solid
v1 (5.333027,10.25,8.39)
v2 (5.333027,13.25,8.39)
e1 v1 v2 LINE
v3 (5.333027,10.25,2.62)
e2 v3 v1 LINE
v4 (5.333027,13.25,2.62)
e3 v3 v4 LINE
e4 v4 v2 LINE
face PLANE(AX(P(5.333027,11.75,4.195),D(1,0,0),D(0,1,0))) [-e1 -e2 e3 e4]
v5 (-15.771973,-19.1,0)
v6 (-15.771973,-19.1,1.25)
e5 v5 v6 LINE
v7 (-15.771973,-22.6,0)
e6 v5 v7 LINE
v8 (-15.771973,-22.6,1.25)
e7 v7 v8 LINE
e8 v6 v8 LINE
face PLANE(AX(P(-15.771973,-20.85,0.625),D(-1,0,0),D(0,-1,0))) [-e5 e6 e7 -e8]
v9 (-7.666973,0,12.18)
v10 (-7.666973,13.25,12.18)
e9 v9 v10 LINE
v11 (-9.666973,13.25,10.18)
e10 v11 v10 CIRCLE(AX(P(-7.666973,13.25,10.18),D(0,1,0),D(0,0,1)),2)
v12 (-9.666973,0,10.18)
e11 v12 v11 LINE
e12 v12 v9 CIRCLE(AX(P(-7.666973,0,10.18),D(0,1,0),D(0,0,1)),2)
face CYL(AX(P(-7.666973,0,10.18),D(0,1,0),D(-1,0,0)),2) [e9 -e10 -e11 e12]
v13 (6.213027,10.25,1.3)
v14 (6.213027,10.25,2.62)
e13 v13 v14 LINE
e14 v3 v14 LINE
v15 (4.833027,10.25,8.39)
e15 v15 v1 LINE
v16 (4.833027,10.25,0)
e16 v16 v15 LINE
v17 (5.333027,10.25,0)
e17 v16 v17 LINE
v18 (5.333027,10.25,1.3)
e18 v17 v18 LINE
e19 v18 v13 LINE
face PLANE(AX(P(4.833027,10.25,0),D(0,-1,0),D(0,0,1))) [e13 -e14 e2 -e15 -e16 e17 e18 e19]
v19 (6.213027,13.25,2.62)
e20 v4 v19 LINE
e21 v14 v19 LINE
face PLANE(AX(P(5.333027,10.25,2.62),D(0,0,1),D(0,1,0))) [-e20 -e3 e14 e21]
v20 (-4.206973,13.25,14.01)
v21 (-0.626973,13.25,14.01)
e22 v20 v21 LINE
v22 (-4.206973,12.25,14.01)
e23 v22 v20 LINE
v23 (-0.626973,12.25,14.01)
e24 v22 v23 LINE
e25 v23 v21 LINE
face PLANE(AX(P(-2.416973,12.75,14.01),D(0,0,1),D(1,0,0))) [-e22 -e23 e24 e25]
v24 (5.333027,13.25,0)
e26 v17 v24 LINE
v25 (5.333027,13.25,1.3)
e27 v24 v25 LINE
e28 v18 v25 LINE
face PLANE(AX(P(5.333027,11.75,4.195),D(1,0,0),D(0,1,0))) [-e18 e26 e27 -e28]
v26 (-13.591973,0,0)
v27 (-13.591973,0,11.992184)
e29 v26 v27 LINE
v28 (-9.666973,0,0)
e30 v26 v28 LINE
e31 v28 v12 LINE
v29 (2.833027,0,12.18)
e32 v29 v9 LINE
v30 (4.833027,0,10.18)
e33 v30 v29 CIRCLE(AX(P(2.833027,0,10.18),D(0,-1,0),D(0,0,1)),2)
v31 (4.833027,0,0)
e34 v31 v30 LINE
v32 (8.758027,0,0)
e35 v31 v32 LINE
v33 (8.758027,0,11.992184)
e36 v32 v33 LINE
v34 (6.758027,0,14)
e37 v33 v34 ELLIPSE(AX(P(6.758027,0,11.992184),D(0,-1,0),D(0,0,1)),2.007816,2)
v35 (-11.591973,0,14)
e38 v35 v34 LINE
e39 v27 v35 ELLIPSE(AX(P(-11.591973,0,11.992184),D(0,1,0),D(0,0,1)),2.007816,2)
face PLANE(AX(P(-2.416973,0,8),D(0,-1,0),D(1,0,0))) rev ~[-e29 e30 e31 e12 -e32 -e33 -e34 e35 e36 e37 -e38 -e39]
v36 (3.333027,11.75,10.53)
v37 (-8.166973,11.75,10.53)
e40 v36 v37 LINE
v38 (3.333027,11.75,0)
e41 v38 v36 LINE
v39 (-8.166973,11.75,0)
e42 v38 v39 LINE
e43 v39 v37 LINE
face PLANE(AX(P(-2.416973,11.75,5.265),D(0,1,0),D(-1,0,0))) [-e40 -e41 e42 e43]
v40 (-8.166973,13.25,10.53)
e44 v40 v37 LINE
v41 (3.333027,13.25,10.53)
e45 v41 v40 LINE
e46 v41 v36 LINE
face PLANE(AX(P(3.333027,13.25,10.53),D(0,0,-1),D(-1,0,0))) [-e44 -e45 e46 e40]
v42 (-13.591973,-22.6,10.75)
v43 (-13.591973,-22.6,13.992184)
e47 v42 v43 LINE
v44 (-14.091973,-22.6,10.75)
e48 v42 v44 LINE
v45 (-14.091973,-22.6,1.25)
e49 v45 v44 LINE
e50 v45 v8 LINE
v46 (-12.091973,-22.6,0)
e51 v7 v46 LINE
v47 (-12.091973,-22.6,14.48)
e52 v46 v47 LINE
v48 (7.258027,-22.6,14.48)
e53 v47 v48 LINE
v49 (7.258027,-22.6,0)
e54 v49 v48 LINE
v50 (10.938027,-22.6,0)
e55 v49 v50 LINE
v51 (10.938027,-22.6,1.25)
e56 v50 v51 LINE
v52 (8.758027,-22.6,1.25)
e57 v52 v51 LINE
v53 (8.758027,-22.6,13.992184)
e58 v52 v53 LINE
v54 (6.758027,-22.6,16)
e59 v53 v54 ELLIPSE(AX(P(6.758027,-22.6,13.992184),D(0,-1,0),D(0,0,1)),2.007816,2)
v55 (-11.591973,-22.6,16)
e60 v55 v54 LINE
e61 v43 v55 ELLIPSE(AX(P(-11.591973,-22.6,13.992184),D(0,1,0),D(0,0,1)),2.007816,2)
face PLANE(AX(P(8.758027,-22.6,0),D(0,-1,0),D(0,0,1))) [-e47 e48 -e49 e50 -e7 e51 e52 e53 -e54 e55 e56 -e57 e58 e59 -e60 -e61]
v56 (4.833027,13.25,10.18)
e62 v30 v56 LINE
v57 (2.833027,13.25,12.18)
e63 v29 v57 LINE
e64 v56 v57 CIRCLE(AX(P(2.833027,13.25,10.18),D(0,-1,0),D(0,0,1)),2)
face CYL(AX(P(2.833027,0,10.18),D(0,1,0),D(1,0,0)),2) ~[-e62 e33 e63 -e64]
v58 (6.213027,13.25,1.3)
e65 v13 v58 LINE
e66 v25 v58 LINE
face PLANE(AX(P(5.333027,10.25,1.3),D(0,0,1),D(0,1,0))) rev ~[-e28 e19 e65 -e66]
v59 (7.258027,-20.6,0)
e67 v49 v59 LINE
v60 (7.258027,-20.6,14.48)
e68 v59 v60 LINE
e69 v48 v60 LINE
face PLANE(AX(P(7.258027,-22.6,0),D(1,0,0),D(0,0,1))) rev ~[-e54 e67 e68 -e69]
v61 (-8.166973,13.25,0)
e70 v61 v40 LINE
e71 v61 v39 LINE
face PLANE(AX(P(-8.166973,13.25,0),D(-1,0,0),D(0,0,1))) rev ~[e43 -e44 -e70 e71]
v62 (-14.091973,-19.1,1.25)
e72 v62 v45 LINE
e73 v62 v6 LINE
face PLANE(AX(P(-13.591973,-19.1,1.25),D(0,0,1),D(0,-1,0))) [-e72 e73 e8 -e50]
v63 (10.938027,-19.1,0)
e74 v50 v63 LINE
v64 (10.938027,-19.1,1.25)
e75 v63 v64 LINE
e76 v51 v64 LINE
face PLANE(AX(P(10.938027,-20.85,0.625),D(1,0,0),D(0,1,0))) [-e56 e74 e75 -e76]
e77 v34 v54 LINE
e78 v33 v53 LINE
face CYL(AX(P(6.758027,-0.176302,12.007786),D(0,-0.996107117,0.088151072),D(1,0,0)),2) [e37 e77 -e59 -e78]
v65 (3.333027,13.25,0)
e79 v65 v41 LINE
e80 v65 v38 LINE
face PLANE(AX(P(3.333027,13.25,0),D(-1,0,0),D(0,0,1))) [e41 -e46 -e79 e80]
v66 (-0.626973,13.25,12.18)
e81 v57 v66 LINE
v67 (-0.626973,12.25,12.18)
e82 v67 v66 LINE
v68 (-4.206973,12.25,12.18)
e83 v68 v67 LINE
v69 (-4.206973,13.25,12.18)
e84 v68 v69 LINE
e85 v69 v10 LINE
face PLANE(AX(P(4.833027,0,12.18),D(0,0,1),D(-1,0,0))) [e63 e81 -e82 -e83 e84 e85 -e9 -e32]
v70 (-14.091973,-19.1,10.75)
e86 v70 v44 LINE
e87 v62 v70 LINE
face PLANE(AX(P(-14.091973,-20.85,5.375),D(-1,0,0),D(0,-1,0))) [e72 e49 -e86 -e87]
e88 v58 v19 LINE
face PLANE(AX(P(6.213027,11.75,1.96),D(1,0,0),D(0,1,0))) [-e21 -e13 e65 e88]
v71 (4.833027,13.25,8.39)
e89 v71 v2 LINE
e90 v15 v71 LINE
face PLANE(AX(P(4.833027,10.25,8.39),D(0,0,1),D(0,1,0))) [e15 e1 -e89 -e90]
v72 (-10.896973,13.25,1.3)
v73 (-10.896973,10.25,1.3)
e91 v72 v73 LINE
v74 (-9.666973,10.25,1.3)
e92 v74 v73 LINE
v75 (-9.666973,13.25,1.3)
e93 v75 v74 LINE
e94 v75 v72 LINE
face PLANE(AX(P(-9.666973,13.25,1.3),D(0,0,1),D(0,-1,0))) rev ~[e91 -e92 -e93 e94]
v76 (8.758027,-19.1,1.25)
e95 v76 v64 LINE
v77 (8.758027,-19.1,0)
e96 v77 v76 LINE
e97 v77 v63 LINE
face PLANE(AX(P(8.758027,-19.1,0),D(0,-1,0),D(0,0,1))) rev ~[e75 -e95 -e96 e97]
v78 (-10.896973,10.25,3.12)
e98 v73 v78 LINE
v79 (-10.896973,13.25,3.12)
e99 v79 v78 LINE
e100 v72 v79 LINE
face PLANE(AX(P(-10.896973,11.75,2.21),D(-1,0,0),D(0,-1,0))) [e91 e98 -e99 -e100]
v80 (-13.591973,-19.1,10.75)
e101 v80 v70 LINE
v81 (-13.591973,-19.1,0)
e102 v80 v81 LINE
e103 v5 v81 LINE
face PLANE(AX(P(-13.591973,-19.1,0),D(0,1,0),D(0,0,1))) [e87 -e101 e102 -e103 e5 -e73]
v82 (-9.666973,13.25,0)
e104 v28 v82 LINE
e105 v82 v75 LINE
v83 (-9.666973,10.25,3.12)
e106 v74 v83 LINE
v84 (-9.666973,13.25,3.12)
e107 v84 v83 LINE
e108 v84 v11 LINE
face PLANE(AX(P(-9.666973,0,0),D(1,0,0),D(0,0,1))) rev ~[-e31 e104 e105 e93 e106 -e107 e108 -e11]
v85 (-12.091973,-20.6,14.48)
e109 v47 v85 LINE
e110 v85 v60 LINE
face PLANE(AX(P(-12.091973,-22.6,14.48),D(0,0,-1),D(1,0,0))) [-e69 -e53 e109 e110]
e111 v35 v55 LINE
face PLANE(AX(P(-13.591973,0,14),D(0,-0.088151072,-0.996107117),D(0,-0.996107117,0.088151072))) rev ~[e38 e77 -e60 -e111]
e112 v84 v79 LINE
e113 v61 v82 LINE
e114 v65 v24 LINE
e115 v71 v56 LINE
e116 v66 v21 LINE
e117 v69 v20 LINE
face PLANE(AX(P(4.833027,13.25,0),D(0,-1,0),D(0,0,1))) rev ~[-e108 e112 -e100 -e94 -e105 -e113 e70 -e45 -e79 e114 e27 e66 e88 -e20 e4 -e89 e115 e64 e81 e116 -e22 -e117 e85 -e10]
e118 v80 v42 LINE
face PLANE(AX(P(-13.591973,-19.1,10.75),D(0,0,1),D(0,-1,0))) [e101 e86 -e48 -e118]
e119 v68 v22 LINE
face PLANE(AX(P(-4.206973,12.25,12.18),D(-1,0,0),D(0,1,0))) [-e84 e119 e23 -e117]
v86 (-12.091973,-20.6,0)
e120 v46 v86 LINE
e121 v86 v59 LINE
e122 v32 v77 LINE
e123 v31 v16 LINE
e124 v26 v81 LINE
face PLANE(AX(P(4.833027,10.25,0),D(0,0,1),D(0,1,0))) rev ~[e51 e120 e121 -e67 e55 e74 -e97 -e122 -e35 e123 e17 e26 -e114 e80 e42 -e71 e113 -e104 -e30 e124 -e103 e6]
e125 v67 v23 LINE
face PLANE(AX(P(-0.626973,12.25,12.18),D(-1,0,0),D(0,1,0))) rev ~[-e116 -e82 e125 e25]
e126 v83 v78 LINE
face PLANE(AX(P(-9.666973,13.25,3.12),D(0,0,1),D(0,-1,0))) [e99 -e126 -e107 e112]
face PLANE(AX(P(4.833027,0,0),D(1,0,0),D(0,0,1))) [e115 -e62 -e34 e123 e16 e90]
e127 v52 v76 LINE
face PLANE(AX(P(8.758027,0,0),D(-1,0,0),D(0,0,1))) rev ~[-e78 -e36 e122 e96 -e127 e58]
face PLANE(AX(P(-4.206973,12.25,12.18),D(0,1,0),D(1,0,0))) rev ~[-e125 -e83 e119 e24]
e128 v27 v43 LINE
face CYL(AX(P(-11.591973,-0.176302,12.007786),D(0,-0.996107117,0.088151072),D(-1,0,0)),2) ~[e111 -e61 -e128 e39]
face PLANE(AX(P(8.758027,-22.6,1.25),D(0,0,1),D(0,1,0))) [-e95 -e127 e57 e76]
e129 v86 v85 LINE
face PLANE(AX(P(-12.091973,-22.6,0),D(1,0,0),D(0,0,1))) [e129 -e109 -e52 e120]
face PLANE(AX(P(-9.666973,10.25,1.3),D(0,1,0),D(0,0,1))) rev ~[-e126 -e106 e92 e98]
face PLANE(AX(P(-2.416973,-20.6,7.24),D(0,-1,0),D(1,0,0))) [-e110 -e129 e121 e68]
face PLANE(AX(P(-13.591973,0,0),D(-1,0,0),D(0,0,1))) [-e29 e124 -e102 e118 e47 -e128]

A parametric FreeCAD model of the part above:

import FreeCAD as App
import Part
import Sketcher

V = App.Vector
Q = App.Units.Quantity


def edges_at(feature, points):
    """Names of the edges that pass closest to the given points."""
    edges = feature.Shape.Edges
    near = lambda p: min(range(len(edges)), key=lambda i: edges[i].distToShape(Part.Vertex(*p))[0])
    return sorted({f"Edge{near(p) + 1}" for p in points})


def add_polygon(sketch, points):
    """Adds a closed chain of lines whose ends are joined by coincident constraints."""
    first, n = sketch.GeometryCount, len(points)
    for a, b in zip(points, points[1:] + points[:1]):
        sketch.addGeometry(Part.LineSegment(App.Vector(*a, 0), App.Vector(*b, 0)), False)
    for i in range(n):
        sketch.addConstraint(Sketcher.Constraint("Coincident", first + i, 2, first + (i + 1) % n, 1))

doc = App.newDocument("Part")
body = doc.addObject("PartDesign::Body", "Body")

# Sketch on XZ plane
sketch1 = body.newObject("Sketcher::SketchObject", "Sketch")
sketch1.AttachmentSupport = (doc.getObject("XZ_Plane"), [""])
sketch1.MapMode = "FlatFace"
add_polygon(sketch1, [(-13.591973, 16), (-13.591973, 0), (8.758027, 0), (8.758027, 16)])  # lines 0-3
sketch1.addConstraint([
    Sketcher.Constraint("Vertical", 0),
    Sketcher.Constraint("Horizontal", 1),
    Sketcher.Constraint("Vertical", 2),
    Sketcher.Constraint("Horizontal", 3),
    Sketcher.Constraint("PointOnObject", 0, 2, -1),
    Sketcher.Constraint("DistanceY", 0, 2, 0, 1, Q("16 mm")),
    Sketcher.Constraint("DistanceX", 1, 1, 1, 2, Q("22.35 mm")),
    Sketcher.Constraint("DistanceX", 0, 2, -1, 1, Q("13.591973 mm")),
])
pad1 = body.newObject("PartDesign::Pad", "Pad")
pad1.Profile = sketch1
pad1.Length = 22.6

# Sketch on XZ plane
sketch2 = body.newObject("Sketcher::SketchObject", "Sketch001")
sketch2.AttachmentSupport = (doc.getObject("XZ_Plane"), [""])
sketch2.MapMode = "FlatFace"
sketch2.AttachmentOffset = App.Placement(V(0, 0, 22.6), App.Rotation())
add_polygon(sketch2, [(-12.091973, 14.48), (-12.091973, 0), (7.258027, 0), (7.258027, 14.48)])  # lines 0-3
sketch2.addConstraint([
    Sketcher.Constraint("Vertical", 0),
    Sketcher.Constraint("Horizontal", 1),
    Sketcher.Constraint("Vertical", 2),
    Sketcher.Constraint("Horizontal", 3),
    Sketcher.Constraint("PointOnObject", 0, 2, -1),
    Sketcher.Constraint("DistanceX", 1, 1, 1, 2, Q("19.35 mm")),
    Sketcher.Constraint("DistanceY", 0, 2, 0, 1, Q("14.48 mm")),
    Sketcher.Constraint("DistanceX", 0, 2, -1, 1, Q("12.091973 mm")),
])
pocket1 = body.newObject("PartDesign::Pocket", "Pocket")
pocket1.Profile = sketch2
pocket1.Length = 2

# Sketch on YZ plane
sketch3 = body.newObject("Sketcher::SketchObject", "Sketch002")
sketch3.AttachmentSupport = (doc.getObject("YZ_Plane"), [""])
sketch3.MapMode = "FlatFace"
sketch3.AttachmentOffset = App.Placement(V(0, 0, -13.591973), App.Rotation())
add_polygon(sketch3, [(0, 16), (0, 14), (-22.6, 16)])  # lines 0-2
sketch3.addConstraint([
    Sketcher.Constraint("Vertical", 0),
    Sketcher.Constraint("Horizontal", 2),
    Sketcher.Constraint("PointOnObject", 0, 2, -2),
    Sketcher.Constraint("DistanceY", 0, 2, 0, 1, Q("2 mm")),
    Sketcher.Constraint("DistanceX", 2, 1, 2, 2, Q("22.6 mm")),
    Sketcher.Constraint("DistanceY", -1, 1, 0, 2, Q("14 mm")),
])
pocket2 = body.newObject("PartDesign::Pocket", "Pocket001")
pocket2.Profile = sketch3
pocket2.Length = 25
pocket2.Reversed = True

# Sketch on YZ plane
sketch4 = body.newObject("Sketcher::SketchObject", "Sketch003")
sketch4.AttachmentSupport = (doc.getObject("YZ_Plane"), [""])
sketch4.MapMode = "FlatFace"
sketch4.AttachmentOffset = App.Placement(V(0, 0, -13.591973), App.Rotation())
add_polygon(sketch4, [(-19.1, 1.25), (-19.1, 0), (-22.6, 0), (-22.6, 1.25)])  # lines 0-3
sketch4.addConstraint([
    Sketcher.Constraint("Vertical", 0),
    Sketcher.Constraint("Horizontal", 1),
    Sketcher.Constraint("Vertical", 2),
    Sketcher.Constraint("Horizontal", 3),
    Sketcher.Constraint("PointOnObject", 0, 2, -1),
    Sketcher.Constraint("DistanceX", 1, 2, 1, 1, Q("3.5 mm")),
    Sketcher.Constraint("DistanceY", 0, 2, 0, 1, Q("1.25 mm")),
    Sketcher.Constraint("DistanceX", 0, 2, -1, 1, Q("19.1 mm")),
])
pad2 = body.newObject("PartDesign::Pad", "Pad001")
pad2.Profile = sketch4
pad2.Length = 2.18
pad2.Reversed = True

# Sketch on YZ plane
sketch5 = body.newObject("Sketcher::SketchObject", "Sketch004")
sketch5.AttachmentSupport = (doc.getObject("YZ_Plane"), [""])
sketch5.MapMode = "FlatFace"
sketch5.AttachmentOffset = App.Placement(V(0, 0, 8.758027), App.Rotation())
add_polygon(sketch5, [(-22.6, 1.25), (-22.6, 0), (-19.1, 0), (-19.1, 1.25)])  # lines 0-3
sketch5.addConstraint([
    Sketcher.Constraint("Vertical", 0),
    Sketcher.Constraint("Horizontal", 1),
    Sketcher.Constraint("Vertical", 2),
    Sketcher.Constraint("Horizontal", 3),
    Sketcher.Constraint("PointOnObject", 0, 2, -1),
    Sketcher.Constraint("DistanceX", 1, 1, 1, 2, Q("3.5 mm")),
    Sketcher.Constraint("DistanceY", 0, 2, 0, 1, Q("1.25 mm")),
    Sketcher.Constraint("DistanceX", 0, 2, -1, 1, Q("22.6 mm")),
])
pad3 = body.newObject("PartDesign::Pad", "Pad002")
pad3.Profile = sketch5
pad3.Length = 2.18

# Sketch on YZ plane
sketch6 = body.newObject("Sketcher::SketchObject", "Sketch005")
sketch6.AttachmentSupport = (doc.getObject("YZ_Plane"), [""])
sketch6.MapMode = "FlatFace"
sketch6.AttachmentOffset = App.Placement(V(0, 0, -13.591973), App.Rotation())
add_polygon(sketch6, [(-19.1, 10.75), (-19.1, 0), (-22.6, 0), (-22.6, 10.75)])  # lines 0-3
sketch6.addConstraint([
    Sketcher.Constraint("Vertical", 0),
    Sketcher.Constraint("Horizontal", 1),
    Sketcher.Constraint("Vertical", 2),
    Sketcher.Constraint("Horizontal", 3),
    Sketcher.Constraint("PointOnObject", 0, 2, -1),
    Sketcher.Constraint("DistanceX", 1, 2, 1, 1, Q("3.5 mm")),
    Sketcher.Constraint("DistanceY", 0, 2, 0, 1, Q("10.75 mm")),
    Sketcher.Constraint("DistanceX", 0, 2, -1, 1, Q("19.1 mm")),
])
pad4 = body.newObject("PartDesign::Pad", "Pad003")
pad4.Profile = sketch6
pad4.Length = 0.5
pad4.Reversed = True

# Sketch on XZ plane
sketch7 = body.newObject("Sketcher::SketchObject", "Sketch006")
sketch7.AttachmentSupport = (doc.getObject("XZ_Plane"), [""])
sketch7.MapMode = "FlatFace"
add_polygon(sketch7, [(4.833027, 12.18), (4.833027, 0), (-9.666973, 0), (-9.666973, 12.18)])  # lines 0-3
sketch7.addConstraint([
    Sketcher.Constraint("Vertical", 0),
    Sketcher.Constraint("Horizontal", 1),
    Sketcher.Constraint("Vertical", 2),
    Sketcher.Constraint("Horizontal", 3),
    Sketcher.Constraint("PointOnObject", 0, 2, -1),
    Sketcher.Constraint("DistanceX", 1, 2, 1, 1, Q("14.5 mm")),
    Sketcher.Constraint("DistanceY", 0, 2, 0, 1, Q("12.18 mm")),
    Sketcher.Constraint("DistanceX", -1, 1, 0, 2, Q("4.833027 mm")),
])
pad5 = body.newObject("PartDesign::Pad", "Pad004")
pad5.Profile = sketch7
pad5.Length = 13.25
pad5.Reversed = True

# Sketch on XZ plane
sketch8 = body.newObject("Sketcher::SketchObject", "Sketch007")
sketch8.AttachmentSupport = (doc.getObject("XZ_Plane"), [""])
sketch8.MapMode = "FlatFace"
sketch8.AttachmentOffset = App.Placement(V(0, 0, -13.25), App.Rotation())
add_polygon(sketch8, [(3.333027, 10.53), (3.333027, 0), (-8.166973, 0), (-8.166973, 10.53)])  # lines 0-3
sketch8.addConstraint([
    Sketcher.Constraint("Vertical", 0),
    Sketcher.Constraint("Horizontal", 1),
    Sketcher.Constraint("Vertical", 2),
    Sketcher.Constraint("Horizontal", 3),
    Sketcher.Constraint("PointOnObject", 0, 2, -1),
    Sketcher.Constraint("DistanceX", 1, 2, 1, 1, Q("11.5 mm")),
    Sketcher.Constraint("DistanceY", 0, 2, 0, 1, Q("10.53 mm")),
    Sketcher.Constraint("DistanceX", -1, 1, 0, 2, Q("3.333027 mm")),
])
pocket3 = body.newObject("PartDesign::Pocket", "Pocket002")
pocket3.Profile = sketch8
pocket3.Length = 1.5
pocket3.Reversed = True

# Sketch on XY plane
sketch9 = body.newObject("Sketcher::SketchObject", "Sketch008")
sketch9.AttachmentSupport = (doc.getObject("XY_Plane"), [""])
sketch9.MapMode = "FlatFace"
sketch9.AttachmentOffset = App.Placement(V(0, 0, 12.18), App.Rotation())
add_polygon(sketch9, [(-4.206973, 13.25), (-4.206973, 12.25), (-0.626973, 12.25), (-0.626973, 13.25)])  # lines 0-3
sketch9.addConstraint([
    Sketcher.Constraint("Vertical", 0),
    Sketcher.Constraint("Horizontal", 1),
    Sketcher.Constraint("Vertical", 2),
    Sketcher.Constraint("Horizontal", 3),
    Sketcher.Constraint("DistanceY", 0, 2, 0, 1, Q("1 mm")),
    Sketcher.Constraint("DistanceX", 1, 1, 1, 2, Q("3.58 mm")),
    Sketcher.Constraint("DistanceY", -1, 1, 0, 2, Q("12.25 mm")),
    Sketcher.Constraint("DistanceX", 0, 2, -1, 1, Q("4.206973 mm")),
])
pad6 = body.newObject("PartDesign::Pad", "Pad005")
pad6.Profile = sketch9
pad6.Length = 1.83

# Sketch on YZ plane
sketch10 = body.newObject("Sketcher::SketchObject", "Sketch009")
sketch10.AttachmentSupport = (doc.getObject("YZ_Plane"), [""])
sketch10.MapMode = "FlatFace"
sketch10.AttachmentOffset = App.Placement(V(0, 0, 4.833027), App.Rotation())
add_polygon(sketch10, [(10.25, 8.39), (10.25, 0), (13.25, 0), (13.25, 8.39)])  # lines 0-3
sketch10.addConstraint([
    Sketcher.Constraint("Vertical", 0),
    Sketcher.Constraint("Horizontal", 1),
    Sketcher.Constraint("Vertical", 2),
    Sketcher.Constraint("Horizontal", 3),
    Sketcher.Constraint("PointOnObject", 0, 2, -1),
    Sketcher.Constraint("DistanceX", 1, 1, 1, 2, Q("3 mm")),
    Sketcher.Constraint("DistanceY", 0, 2, 0, 1, Q("8.39 mm")),
    Sketcher.Constraint("DistanceX", -1, 1, 0, 2, Q("10.25 mm")),
])
pad7 = body.newObject("PartDesign::Pad", "Pad006")
pad7.Profile = sketch10
pad7.Length = 0.5

# Sketch on YZ plane
sketch11 = body.newObject("Sketcher::SketchObject", "Sketch010")
sketch11.AttachmentSupport = (doc.getObject("YZ_Plane"), [""])
sketch11.MapMode = "FlatFace"
sketch11.AttachmentOffset = App.Placement(V(0, 0, 5.333027), App.Rotation())
add_polygon(sketch11, [(10.25, 2.62), (10.25, 1.3), (13.25, 1.3), (13.25, 2.62)])  # lines 0-3
sketch11.addConstraint([
    Sketcher.Constraint("Vertical", 0),
    Sketcher.Constraint("Horizontal", 1),
    Sketcher.Constraint("Vertical", 2),
    Sketcher.Constraint("Horizontal", 3),
    Sketcher.Constraint("DistanceX", 1, 1, 1, 2, Q("3 mm")),
    Sketcher.Constraint("DistanceY", 0, 2, 0, 1, Q("1.32 mm")),
    Sketcher.Constraint("DistanceY", -1, 1, 0, 2, Q("1.3 mm")),
    Sketcher.Constraint("DistanceX", -1, 1, 0, 2, Q("10.25 mm")),
])
pad8 = body.newObject("PartDesign::Pad", "Pad007")
pad8.Profile = sketch11
pad8.Length = 0.88

# Sketch on YZ plane
sketch12 = body.newObject("Sketcher::SketchObject", "Sketch011")
sketch12.AttachmentSupport = (doc.getObject("YZ_Plane"), [""])
sketch12.MapMode = "FlatFace"
sketch12.AttachmentOffset = App.Placement(V(0, 0, -9.666973), App.Rotation())
add_polygon(sketch12, [(13.25, 3.12), (13.25, 1.3), (10.25, 1.3), (10.25, 3.12)])  # lines 0-3
sketch12.addConstraint([
    Sketcher.Constraint("Vertical", 0),
    Sketcher.Constraint("Horizontal", 1),
    Sketcher.Constraint("Vertical", 2),
    Sketcher.Constraint("Horizontal", 3),
    Sketcher.Constraint("DistanceX", 1, 2, 1, 1, Q("3 mm")),
    Sketcher.Constraint("DistanceY", 0, 2, 0, 1, Q("1.82 mm")),
    Sketcher.Constraint("DistanceY", -1, 1, 0, 2, Q("1.3 mm")),
    Sketcher.Constraint("DistanceX", -1, 1, 0, 2, Q("13.25 mm")),
])
pad9 = body.newObject("PartDesign::Pad", "Pad008")
pad9.Profile = sketch12
pad9.Length = 1.23
pad9.Reversed = True
doc.recompute()

fillet = body.newObject("PartDesign::Fillet", "Fillet")
fillet.Base = (pad9, edges_at(pad9, [
    (-13.592, -11.3, 15),
    (8.758, -11.3, 15),
    (4.833, 6.625, 12.18),
    (-9.667, 6.625, 12.18),
]))
fillet.Radius = 2

doc.recompute()
